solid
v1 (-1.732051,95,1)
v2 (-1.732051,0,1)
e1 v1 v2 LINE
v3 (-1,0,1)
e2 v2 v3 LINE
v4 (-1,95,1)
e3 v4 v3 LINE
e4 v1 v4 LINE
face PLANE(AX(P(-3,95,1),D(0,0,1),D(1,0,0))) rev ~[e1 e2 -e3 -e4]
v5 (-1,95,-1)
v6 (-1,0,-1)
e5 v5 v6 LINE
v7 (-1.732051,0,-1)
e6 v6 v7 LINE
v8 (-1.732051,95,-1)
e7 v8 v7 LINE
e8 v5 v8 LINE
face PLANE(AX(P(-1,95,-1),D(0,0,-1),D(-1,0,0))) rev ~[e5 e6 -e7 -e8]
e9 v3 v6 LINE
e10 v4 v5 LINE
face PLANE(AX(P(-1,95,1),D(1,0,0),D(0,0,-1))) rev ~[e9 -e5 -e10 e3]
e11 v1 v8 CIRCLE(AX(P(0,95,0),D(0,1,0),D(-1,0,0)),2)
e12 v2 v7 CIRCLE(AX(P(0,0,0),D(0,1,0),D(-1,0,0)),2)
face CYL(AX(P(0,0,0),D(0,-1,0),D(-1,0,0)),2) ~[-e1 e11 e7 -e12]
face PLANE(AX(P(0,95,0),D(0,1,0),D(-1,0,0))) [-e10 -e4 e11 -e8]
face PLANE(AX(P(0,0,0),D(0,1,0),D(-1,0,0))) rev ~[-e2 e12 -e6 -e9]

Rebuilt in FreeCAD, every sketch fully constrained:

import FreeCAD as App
import Part
import Sketcher
from FreeCAD import Vector
Q = App.Units.Quantity


def add_polygon(sketch, points):
    """Adds a closed chain of lines whose ends are joined by coincident constraints."""
    first, n = sketch.GeometryCount, len(points)
    for a, b in zip(points, points[1:] + points[:1]):
        sketch.addGeometry(Part.LineSegment(App.Vector(*a, 0), App.Vector(*b, 0)), False)
    for i in range(n):
        sketch.addConstraint(Sketcher.Constraint("Coincident", first + i, 2, first + (i + 1) % n, 1))

doc = App.newDocument("Part")
body = doc.addObject("PartDesign::Body", "Body")

# Sketch on XZ plane
sketch1 = doc.addObject("Sketcher::SketchObject", "Sketch")
body.addObject(sketch1)
sketch1.AttachmentSupport = (doc.XZ_Plane, [""])
sketch1.MapMode = "FlatFace"
sketch1.addGeometry(Part.Circle(Vector(0, 0, 0), Vector(0, 0, 1), 2), False)
sketch1.addConstraint([
    Sketcher.Constraint("Coincident", 0, 3, -1, 1),
    Sketcher.Constraint("Diameter", 0, Q("4 mm")),
])
pad1 = doc.addObject("PartDesign::Pad", "Pad")
body.addObject(pad1)
pad1.Profile = sketch1
pad1.Length = 95
pad1.Reversed = True

# Sketch on XZ plane
sketch2 = doc.addObject("Sketcher::SketchObject", "Sketch001")
body.addObject(sketch2)
sketch2.AttachmentSupport = (doc.XZ_Plane, [""])
sketch2.MapMode = "FlatFace"
sketch2.AttachmentOffset = App.Placement(Vector(0, 0, -95), App.Rotation())
add_polygon(sketch2, [(-3, -1), (-3, 1), (-1, 1), (-1, -1)])  # lines 0-3
sketch2.addConstraint([
    Sketcher.Constraint("Vertical", 0),
    Sketcher.Constraint("Horizontal", 1),
    Sketcher.Constraint("Vertical", 2),
    Sketcher.Constraint("Horizontal", 3),
    Sketcher.Constraint("Equal", 3, 0),
    Sketcher.Constraint("DistanceX", 1, 1, 1, 2, Q("2 mm")),
    Sketcher.Constraint("DistanceY", -1, 1, 0, 2, Q("1 mm")),
    Sketcher.Constraint("DistanceX", 1, 2, -1, 1, Q("1 mm")),
])
pocket1 = doc.addObject("PartDesign::Pocket", "Pocket")
body.addObject(pocket1)
pocket1.Profile = sketch2
pocket1.Type = "ThroughAll"
pocket1.Reversed = True

doc.recompute()
